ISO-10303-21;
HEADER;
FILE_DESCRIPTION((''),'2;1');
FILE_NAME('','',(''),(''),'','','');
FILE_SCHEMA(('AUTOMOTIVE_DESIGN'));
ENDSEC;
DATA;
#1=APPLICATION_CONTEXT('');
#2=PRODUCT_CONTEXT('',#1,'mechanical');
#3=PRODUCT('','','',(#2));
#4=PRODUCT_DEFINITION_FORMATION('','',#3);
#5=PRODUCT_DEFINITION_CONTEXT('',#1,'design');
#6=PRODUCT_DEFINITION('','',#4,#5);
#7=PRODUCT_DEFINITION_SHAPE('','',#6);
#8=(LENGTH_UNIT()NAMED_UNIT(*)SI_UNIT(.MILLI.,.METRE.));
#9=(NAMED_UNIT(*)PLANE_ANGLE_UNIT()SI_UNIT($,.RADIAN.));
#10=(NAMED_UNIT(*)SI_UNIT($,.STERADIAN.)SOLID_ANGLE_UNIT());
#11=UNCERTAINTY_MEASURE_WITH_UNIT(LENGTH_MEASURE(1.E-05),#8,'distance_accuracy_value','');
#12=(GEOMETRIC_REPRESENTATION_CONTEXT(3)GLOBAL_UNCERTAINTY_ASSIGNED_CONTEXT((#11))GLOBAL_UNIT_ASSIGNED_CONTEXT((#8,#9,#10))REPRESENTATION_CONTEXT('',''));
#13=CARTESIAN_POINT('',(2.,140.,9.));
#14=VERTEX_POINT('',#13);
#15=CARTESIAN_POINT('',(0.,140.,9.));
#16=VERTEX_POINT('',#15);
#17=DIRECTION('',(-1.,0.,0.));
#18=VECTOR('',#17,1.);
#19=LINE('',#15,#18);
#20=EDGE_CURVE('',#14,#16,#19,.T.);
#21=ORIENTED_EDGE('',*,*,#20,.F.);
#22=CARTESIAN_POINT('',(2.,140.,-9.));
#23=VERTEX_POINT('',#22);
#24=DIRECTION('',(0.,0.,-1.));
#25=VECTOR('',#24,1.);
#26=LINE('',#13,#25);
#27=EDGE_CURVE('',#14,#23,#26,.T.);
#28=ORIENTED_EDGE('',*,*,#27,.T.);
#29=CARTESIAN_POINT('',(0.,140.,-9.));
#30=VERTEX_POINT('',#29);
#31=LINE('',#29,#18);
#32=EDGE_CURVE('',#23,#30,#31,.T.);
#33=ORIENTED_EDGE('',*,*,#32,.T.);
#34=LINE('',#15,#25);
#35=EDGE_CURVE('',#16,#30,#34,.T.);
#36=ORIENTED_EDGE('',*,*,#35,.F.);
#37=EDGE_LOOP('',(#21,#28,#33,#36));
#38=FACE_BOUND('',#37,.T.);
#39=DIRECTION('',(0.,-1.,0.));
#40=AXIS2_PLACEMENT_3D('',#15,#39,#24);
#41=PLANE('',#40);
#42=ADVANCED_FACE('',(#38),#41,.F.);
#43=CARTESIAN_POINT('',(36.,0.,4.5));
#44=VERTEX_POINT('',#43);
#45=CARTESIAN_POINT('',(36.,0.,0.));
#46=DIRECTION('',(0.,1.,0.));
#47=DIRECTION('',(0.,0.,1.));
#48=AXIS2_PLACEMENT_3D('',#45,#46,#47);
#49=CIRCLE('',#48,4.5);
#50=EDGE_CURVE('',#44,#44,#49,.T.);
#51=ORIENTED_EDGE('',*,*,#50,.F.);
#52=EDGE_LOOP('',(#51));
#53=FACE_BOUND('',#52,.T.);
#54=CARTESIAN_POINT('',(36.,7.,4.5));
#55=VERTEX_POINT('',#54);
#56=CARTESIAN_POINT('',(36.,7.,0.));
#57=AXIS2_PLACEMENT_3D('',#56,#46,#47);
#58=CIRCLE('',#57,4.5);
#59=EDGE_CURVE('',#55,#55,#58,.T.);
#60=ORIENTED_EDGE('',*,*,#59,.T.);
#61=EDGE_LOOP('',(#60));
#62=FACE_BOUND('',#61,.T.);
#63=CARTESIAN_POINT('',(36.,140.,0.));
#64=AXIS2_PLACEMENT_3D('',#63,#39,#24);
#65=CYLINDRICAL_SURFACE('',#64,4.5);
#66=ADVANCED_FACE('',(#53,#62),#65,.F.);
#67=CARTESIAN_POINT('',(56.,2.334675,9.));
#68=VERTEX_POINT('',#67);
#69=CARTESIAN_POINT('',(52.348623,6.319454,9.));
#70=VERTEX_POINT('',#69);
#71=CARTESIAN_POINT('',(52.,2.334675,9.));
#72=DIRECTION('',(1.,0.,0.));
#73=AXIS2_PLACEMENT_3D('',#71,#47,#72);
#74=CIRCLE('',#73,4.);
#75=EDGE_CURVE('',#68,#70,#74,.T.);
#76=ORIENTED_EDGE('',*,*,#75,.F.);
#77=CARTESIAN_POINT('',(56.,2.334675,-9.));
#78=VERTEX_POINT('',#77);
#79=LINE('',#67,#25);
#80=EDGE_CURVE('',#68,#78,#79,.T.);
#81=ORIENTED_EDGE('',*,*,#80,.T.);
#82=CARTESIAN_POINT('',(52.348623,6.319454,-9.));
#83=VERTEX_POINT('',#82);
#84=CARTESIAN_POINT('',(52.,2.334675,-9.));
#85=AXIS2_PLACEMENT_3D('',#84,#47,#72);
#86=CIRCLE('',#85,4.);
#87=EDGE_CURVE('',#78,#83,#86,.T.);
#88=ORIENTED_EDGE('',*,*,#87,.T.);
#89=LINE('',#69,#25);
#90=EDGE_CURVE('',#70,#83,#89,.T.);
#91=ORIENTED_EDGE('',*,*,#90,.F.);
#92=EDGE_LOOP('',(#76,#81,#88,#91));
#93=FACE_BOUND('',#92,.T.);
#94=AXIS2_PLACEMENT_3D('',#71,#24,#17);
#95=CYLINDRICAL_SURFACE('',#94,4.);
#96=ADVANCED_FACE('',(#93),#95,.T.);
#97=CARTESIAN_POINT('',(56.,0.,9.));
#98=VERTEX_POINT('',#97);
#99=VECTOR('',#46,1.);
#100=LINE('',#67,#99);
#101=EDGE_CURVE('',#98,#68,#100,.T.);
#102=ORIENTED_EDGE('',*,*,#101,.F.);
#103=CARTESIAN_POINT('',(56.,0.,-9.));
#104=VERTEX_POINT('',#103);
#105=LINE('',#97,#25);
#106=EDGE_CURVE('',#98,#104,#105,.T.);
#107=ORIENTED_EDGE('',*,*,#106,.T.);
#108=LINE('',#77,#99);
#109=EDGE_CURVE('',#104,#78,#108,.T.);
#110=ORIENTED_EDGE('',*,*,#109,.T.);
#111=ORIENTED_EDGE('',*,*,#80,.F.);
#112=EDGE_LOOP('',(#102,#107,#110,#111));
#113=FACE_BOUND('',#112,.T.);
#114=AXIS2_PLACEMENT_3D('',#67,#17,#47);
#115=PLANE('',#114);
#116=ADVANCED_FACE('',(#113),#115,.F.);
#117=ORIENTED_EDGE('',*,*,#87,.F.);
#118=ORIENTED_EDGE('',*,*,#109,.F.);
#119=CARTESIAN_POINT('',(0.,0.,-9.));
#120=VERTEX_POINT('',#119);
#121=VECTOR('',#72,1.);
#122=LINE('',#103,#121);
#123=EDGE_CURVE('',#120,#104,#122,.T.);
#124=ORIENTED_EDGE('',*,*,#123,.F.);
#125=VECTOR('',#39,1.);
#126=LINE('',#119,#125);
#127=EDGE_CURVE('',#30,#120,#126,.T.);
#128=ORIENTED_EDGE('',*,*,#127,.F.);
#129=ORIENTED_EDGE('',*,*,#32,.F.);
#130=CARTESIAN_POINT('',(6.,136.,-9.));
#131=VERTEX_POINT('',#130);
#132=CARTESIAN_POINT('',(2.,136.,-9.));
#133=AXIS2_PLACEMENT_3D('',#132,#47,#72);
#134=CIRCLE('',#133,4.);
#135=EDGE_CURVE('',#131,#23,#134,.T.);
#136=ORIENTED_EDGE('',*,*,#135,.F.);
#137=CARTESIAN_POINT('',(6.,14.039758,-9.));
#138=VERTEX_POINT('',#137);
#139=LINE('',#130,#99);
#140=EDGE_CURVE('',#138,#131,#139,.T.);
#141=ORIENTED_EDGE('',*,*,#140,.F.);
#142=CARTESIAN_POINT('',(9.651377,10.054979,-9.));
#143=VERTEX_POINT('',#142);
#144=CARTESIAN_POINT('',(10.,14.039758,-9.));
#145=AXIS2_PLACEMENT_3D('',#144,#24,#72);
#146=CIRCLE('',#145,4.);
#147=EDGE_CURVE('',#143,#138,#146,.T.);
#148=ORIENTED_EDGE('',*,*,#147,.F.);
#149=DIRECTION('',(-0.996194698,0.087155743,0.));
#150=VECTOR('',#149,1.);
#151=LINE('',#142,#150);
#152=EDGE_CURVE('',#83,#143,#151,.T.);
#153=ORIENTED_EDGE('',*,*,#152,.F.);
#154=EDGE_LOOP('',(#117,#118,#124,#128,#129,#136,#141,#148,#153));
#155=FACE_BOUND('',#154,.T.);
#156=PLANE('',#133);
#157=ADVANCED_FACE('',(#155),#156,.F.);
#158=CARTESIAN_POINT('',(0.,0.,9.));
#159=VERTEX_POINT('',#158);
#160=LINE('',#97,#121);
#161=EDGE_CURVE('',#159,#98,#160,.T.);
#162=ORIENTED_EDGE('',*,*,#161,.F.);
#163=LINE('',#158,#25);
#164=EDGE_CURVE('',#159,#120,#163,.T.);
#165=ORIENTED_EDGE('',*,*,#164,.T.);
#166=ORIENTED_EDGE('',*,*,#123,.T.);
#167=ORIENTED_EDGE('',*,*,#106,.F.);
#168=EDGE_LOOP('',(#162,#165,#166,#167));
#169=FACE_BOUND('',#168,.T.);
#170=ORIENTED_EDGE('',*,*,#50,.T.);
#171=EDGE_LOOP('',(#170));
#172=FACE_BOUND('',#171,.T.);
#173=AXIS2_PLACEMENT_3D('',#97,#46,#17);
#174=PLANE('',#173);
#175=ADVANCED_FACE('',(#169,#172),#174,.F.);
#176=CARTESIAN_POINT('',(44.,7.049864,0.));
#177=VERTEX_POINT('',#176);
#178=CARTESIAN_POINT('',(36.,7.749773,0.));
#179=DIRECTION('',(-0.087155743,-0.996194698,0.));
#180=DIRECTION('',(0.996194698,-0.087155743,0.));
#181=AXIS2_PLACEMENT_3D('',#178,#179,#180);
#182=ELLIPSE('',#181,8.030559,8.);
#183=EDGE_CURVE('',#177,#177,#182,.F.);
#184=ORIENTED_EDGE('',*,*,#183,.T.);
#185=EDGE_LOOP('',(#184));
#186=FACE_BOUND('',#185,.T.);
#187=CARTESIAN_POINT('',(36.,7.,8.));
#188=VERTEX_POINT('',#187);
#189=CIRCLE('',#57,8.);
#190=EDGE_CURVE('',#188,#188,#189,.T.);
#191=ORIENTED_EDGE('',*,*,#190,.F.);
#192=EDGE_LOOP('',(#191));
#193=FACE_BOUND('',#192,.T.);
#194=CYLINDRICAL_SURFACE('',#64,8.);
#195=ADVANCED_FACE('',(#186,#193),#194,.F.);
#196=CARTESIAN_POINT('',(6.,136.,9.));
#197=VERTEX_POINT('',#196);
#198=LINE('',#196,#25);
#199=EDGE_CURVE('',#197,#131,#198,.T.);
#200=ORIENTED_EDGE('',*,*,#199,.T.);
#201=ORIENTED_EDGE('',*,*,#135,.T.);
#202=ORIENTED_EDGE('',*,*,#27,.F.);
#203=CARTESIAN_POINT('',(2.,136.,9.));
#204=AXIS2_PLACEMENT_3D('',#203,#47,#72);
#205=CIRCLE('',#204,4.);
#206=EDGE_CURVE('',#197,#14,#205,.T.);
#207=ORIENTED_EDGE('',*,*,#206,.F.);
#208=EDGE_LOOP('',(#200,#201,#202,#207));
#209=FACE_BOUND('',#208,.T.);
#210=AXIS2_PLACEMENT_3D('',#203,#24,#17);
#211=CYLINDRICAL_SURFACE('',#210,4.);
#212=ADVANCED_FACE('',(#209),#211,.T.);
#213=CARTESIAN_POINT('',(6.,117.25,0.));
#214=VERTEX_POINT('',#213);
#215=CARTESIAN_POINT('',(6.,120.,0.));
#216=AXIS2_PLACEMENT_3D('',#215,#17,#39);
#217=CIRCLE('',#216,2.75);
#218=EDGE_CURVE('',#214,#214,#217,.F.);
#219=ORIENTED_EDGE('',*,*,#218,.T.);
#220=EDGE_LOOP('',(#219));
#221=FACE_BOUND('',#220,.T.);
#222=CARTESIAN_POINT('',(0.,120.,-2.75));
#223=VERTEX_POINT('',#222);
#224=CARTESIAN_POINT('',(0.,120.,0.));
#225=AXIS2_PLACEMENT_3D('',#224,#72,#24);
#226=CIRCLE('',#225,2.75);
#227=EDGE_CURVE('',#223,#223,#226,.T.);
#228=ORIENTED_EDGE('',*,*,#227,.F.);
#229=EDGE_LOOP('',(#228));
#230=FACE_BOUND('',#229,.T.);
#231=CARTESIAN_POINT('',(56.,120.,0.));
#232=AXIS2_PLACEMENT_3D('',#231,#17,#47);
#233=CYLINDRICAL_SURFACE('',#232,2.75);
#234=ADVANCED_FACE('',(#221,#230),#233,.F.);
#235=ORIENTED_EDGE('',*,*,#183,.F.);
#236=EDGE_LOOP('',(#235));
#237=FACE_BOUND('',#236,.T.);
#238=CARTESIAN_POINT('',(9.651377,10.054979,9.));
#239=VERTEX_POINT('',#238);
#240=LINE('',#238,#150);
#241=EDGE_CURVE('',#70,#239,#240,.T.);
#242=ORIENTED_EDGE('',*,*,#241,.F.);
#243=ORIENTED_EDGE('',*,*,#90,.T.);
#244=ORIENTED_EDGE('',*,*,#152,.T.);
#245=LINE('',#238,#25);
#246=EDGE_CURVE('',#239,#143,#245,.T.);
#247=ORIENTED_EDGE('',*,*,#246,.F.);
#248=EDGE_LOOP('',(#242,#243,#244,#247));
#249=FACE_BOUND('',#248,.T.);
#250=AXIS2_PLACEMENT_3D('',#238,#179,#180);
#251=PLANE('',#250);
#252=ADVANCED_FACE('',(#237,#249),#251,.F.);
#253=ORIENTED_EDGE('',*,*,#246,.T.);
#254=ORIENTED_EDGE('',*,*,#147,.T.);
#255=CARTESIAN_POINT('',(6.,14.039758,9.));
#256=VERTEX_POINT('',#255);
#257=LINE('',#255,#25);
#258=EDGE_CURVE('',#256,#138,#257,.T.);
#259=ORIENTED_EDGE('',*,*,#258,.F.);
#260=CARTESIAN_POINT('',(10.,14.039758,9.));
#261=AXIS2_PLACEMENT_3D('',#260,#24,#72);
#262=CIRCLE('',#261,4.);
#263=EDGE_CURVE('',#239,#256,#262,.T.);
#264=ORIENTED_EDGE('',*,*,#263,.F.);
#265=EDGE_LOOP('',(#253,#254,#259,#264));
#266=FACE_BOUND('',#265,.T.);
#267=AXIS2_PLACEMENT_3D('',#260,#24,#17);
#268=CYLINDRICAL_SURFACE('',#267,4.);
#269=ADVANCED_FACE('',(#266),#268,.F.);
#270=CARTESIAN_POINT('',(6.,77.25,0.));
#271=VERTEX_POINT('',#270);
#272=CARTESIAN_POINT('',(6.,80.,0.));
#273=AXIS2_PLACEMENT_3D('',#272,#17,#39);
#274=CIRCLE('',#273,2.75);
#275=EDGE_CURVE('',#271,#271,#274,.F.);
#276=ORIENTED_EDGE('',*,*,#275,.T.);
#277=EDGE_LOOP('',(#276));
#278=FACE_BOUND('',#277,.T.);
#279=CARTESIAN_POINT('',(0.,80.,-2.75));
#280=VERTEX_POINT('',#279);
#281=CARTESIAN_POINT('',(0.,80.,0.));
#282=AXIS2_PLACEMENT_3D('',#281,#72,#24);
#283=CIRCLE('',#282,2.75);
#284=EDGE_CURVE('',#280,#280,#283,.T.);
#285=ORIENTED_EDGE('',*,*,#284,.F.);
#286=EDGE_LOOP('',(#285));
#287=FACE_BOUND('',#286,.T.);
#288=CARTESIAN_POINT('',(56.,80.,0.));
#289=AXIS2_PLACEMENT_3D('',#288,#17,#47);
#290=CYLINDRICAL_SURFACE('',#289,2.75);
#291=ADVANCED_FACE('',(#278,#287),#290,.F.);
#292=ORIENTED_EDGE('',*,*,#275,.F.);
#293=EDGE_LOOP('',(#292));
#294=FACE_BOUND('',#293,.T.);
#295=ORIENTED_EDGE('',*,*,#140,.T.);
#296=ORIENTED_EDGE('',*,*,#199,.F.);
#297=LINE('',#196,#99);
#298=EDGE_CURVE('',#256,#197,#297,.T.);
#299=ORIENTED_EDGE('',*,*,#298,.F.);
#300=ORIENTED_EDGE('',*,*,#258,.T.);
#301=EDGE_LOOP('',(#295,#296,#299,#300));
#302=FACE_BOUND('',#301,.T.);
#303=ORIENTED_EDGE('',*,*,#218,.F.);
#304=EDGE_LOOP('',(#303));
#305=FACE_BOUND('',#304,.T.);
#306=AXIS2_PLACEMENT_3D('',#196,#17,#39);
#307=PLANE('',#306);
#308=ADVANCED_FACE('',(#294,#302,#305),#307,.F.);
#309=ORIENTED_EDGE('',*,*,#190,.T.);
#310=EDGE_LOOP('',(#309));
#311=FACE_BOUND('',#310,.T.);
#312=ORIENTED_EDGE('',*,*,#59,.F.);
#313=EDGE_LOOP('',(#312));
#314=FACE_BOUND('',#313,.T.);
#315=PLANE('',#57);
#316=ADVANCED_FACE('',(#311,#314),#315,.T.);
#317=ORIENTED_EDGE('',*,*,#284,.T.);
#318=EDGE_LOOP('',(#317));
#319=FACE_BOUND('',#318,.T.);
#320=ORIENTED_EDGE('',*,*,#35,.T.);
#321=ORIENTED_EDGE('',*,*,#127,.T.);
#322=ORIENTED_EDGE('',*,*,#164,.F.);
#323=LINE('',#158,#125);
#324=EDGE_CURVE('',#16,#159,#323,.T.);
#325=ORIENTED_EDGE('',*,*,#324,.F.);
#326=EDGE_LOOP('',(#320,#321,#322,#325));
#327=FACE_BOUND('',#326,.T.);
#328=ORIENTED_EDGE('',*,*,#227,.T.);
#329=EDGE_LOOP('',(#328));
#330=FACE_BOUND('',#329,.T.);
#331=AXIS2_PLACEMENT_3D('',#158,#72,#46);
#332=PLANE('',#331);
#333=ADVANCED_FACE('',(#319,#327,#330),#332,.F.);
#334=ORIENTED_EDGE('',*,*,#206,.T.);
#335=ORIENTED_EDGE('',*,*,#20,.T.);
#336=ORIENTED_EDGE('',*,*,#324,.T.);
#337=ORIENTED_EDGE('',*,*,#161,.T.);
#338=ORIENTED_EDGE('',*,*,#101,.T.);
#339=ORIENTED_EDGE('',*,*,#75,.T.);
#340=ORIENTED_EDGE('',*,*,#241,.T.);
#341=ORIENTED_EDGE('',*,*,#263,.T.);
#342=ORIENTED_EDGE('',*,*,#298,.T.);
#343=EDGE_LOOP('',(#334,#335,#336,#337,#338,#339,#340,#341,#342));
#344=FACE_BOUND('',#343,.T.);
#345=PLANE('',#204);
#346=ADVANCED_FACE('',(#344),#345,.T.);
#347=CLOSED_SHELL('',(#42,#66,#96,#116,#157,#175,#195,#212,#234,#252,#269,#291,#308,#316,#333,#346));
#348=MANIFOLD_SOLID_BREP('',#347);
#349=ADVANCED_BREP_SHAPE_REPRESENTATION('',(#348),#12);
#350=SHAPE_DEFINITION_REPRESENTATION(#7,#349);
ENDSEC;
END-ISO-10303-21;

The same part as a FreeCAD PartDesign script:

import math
import FreeCAD as App
import Part
import Sketcher

V = App.Vector
Q = App.Units.Quantity

doc = App.newDocument("Part")
params = doc.addObject("Spreadsheet::Sheet", "Params")
for row, (alias, value) in enumerate([
    ("sketch1_radius", "4 mm"),
    ("sketch1_width", "56 mm"),
    ("sketch1_width2", "2 mm"),
    ("sketch1_height", "140 mm"),
    ("pad1_length", "18 mm"),
    ("sketch2_diameter", "9 mm"),
    ("sketch3_diameter", "16 mm"),
    ("sketch4_diameter", "5.5 mm"),
], start=1):
    params.set(f"A{row}", alias)
    params.set(f"B{row}", "=" + value)
    params.setAlias(f"B{row}", alias)

body = doc.addObject("PartDesign::Body", "Body")

# Sketch on XY plane
sketch1 = body.newObject("Sketcher::SketchObject", "Sketch")
sketch1.AttachmentSupport = (doc.getObject("XY_Plane"), [""])
sketch1.MapMode = "FlatFace"
sketch1.addGeometry(Part.LineSegment(V(0, 140, 0), V(0, 0, 0)), False)
sketch1.addGeometry(Part.LineSegment(V(0, 0, 0), V(56, 0, 0)), False)
sketch1.addGeometry(Part.LineSegment(V(56, 0, 0), V(56, 2.3, 0)), False)
sketch1.addGeometry(Part.ArcOfCircle(Part.Circle(V(52, 2.3, 0), V(0, 0, 1), 4), math.radians(0), math.radians(85)), False)
sketch1.addGeometry(Part.LineSegment(V(52.3, 6.3, 0), V(9.7, 10.1, 0)), False)
sketch1.addGeometry(Part.ArcOfCircle(Part.Circle(V(10, 14, 0), V(0, 0, 1), 4), math.radians(-180), math.radians(-95)), False)
sketch1.addGeometry(Part.LineSegment(V(6, 14, 0), V(6, 136, 0)), False)
sketch1.addGeometry(Part.ArcOfCircle(Part.Circle(V(2, 136, 0), V(0, 0, 1), 4), math.radians(0), math.radians(90)), False)
sketch1.addGeometry(Part.LineSegment(V(2, 140, 0), V(0, 140, 0)), False)
sketch1.addConstraint(Sketcher.Constraint("Coincident", 0, 2, 1, 1))
sketch1.addConstraint(Sketcher.Constraint("Coincident", 1, 2, 2, 1))
sketch1.addConstraint(Sketcher.Constraint("Tangent", 2, 2, 3, 1))
sketch1.addConstraint(Sketcher.Constraint("Tangent", 3, 2, 4, 1))
sketch1.addConstraint(Sketcher.Constraint("Tangent", 4, 2, 5, 2))
sketch1.addConstraint(Sketcher.Constraint("Tangent", 5, 1, 6, 1))
sketch1.addConstraint(Sketcher.Constraint("Tangent", 6, 2, 7, 1))
sketch1.addConstraint(Sketcher.Constraint("Tangent", 7, 2, 8, 1))
sketch1.addConstraint(Sketcher.Constraint("Coincident", 8, 2, 0, 1))
sketch1.addConstraint(Sketcher.Constraint("Vertical", 0))
sketch1.addConstraint(Sketcher.Constraint("Horizontal", 1))
sketch1.addConstraint(Sketcher.Constraint("Vertical", 2))
sketch1.addConstraint(Sketcher.Constraint("Vertical", 6))
sketch1.addConstraint(Sketcher.Constraint("Horizontal", 8))
sketch1.addConstraint(Sketcher.Constraint("Coincident", 0, 2, -1, 1))
sketch1.addConstraint(Sketcher.Constraint("Equal", 3, 5))
sketch1.addConstraint(Sketcher.Constraint("Equal", 5, 7))
sketch1.addConstraint(Sketcher.Constraint("Radius", 3, Q("4 mm")))
sketch1.addConstraint(Sketcher.Constraint("DistanceX", 1, 1, 1, 2, Q("56 mm")))
sketch1.addConstraint(Sketcher.Constraint("DistanceX", 8, 2, 8, 1, Q("2 mm")))
sketch1.addConstraint(Sketcher.Constraint("DistanceY", 0, 2, 0, 1, Q("140 mm")))
sketch1.addConstraint(Sketcher.Constraint("Angle", 4, Q("175 deg")))
sketch1.addConstraint(Sketcher.Constraint("DistanceY", 2, 1, 2, 2, Q("2.334675 mm")))
sketch1.setExpression("Constraints[17]", "Params.sketch1_radius")
sketch1.setExpression("Constraints[18]", "Params.sketch1_width")
sketch1.setExpression("Constraints[19]", "Params.sketch1_width2")
sketch1.setExpression("Constraints[20]", "Params.sketch1_height")
pad1 = body.newObject("PartDesign::Pad", "Pad")
pad1.Profile = sketch1
pad1.setExpression("Length", "Params.pad1_length")
pad1.Midplane = True

# Sketch on XZ plane
sketch2 = body.newObject("Sketcher::SketchObject", "Sketch001")
sketch2.AttachmentSupport = (doc.getObject("XZ_Plane"), [""])
sketch2.MapMode = "FlatFace"
sketch2.addGeometry(Part.Circle(V(36, 0, 0), V(0, 0, 1), 4.5), False)
sketch2.addConstraint(Sketcher.Constraint("PointOnObject", 0, 3, -1))
sketch2.addConstraint(Sketcher.Constraint("Diameter", 0, Q("9 mm")))
sketch2.addConstraint(Sketcher.Constraint("DistanceX", -1, 1, 0, 3, Q("36 mm")))
sketch2.setExpression("Constraints[1]", "Params.sketch2_diameter")
pocket1 = body.newObject("PartDesign::Pocket", "Pocket")
pocket1.Profile = sketch2
pocket1.Type = "ThroughAll"

# Sketch on XZ plane
sketch3 = body.newObject("Sketcher::SketchObject", "Sketch002")
sketch3.AttachmentSupport = (doc.getObject("XZ_Plane"), [""])
sketch3.MapMode = "FlatFace"
sketch3.AttachmentOffset = App.Placement(V(0, 0, -7), App.Rotation())
sketch3.addGeometry(Part.Circle(V(36, 0, 0), V(0, 0, 1), 8), False)
sketch3.addConstraint(Sketcher.Constraint("PointOnObject", 0, 3, -1))
sketch3.addConstraint(Sketcher.Constraint("Diameter", 0, Q("16 mm")))
sketch3.addConstraint(Sketcher.Constraint("DistanceX", -1, 1, 0, 3, Q("36 mm")))
sketch3.setExpression("Constraints[1]", "Params.sketch3_diameter")
pocket2 = body.newObject("PartDesign::Pocket", "Pocket001")
pocket2.Profile = sketch3
pocket2.Type = "ThroughAll"

# Sketch on YZ plane
sketch4 = body.newObject("Sketcher::SketchObject", "Sketch003")
sketch4.AttachmentSupport = (doc.getObject("YZ_Plane"), [""])
sketch4.MapMode = "FlatFace"
sketch4.addGeometry(Part.Circle(V(80, 0, 0), V(0, 0, 1), 2.8), False)
sketch4.addGeometry(Part.Circle(V(120, 0, 0), V(0, 0, 1), 2.8), False)
sketch4.addConstraint(Sketcher.Constraint("Equal", 0, 1))
sketch4.addConstraint(Sketcher.Constraint("PointOnObject", 0, 3, -1))
sketch4.addConstraint(Sketcher.Constraint("PointOnObject", 1, 3, -1))
sketch4.addConstraint(Sketcher.Constraint("Diameter", 0, Q("5.5 mm")))
sketch4.addConstraint(Sketcher.Constraint("DistanceX", -1, 1, 0, 3, Q("80 mm")))
sketch4.addConstraint(Sketcher.Constraint("DistanceX", -1, 1, 1, 3, Q("120 mm")))
sketch4.setExpression("Constraints[3]", "Params.sketch4_diameter")
pocket3 = body.newObject("PartDesign::Pocket", "Pocket002")
pocket3.Profile = sketch4
pocket3.Type = "ThroughAll"
pocket3.Reversed = True

doc.recompute()
